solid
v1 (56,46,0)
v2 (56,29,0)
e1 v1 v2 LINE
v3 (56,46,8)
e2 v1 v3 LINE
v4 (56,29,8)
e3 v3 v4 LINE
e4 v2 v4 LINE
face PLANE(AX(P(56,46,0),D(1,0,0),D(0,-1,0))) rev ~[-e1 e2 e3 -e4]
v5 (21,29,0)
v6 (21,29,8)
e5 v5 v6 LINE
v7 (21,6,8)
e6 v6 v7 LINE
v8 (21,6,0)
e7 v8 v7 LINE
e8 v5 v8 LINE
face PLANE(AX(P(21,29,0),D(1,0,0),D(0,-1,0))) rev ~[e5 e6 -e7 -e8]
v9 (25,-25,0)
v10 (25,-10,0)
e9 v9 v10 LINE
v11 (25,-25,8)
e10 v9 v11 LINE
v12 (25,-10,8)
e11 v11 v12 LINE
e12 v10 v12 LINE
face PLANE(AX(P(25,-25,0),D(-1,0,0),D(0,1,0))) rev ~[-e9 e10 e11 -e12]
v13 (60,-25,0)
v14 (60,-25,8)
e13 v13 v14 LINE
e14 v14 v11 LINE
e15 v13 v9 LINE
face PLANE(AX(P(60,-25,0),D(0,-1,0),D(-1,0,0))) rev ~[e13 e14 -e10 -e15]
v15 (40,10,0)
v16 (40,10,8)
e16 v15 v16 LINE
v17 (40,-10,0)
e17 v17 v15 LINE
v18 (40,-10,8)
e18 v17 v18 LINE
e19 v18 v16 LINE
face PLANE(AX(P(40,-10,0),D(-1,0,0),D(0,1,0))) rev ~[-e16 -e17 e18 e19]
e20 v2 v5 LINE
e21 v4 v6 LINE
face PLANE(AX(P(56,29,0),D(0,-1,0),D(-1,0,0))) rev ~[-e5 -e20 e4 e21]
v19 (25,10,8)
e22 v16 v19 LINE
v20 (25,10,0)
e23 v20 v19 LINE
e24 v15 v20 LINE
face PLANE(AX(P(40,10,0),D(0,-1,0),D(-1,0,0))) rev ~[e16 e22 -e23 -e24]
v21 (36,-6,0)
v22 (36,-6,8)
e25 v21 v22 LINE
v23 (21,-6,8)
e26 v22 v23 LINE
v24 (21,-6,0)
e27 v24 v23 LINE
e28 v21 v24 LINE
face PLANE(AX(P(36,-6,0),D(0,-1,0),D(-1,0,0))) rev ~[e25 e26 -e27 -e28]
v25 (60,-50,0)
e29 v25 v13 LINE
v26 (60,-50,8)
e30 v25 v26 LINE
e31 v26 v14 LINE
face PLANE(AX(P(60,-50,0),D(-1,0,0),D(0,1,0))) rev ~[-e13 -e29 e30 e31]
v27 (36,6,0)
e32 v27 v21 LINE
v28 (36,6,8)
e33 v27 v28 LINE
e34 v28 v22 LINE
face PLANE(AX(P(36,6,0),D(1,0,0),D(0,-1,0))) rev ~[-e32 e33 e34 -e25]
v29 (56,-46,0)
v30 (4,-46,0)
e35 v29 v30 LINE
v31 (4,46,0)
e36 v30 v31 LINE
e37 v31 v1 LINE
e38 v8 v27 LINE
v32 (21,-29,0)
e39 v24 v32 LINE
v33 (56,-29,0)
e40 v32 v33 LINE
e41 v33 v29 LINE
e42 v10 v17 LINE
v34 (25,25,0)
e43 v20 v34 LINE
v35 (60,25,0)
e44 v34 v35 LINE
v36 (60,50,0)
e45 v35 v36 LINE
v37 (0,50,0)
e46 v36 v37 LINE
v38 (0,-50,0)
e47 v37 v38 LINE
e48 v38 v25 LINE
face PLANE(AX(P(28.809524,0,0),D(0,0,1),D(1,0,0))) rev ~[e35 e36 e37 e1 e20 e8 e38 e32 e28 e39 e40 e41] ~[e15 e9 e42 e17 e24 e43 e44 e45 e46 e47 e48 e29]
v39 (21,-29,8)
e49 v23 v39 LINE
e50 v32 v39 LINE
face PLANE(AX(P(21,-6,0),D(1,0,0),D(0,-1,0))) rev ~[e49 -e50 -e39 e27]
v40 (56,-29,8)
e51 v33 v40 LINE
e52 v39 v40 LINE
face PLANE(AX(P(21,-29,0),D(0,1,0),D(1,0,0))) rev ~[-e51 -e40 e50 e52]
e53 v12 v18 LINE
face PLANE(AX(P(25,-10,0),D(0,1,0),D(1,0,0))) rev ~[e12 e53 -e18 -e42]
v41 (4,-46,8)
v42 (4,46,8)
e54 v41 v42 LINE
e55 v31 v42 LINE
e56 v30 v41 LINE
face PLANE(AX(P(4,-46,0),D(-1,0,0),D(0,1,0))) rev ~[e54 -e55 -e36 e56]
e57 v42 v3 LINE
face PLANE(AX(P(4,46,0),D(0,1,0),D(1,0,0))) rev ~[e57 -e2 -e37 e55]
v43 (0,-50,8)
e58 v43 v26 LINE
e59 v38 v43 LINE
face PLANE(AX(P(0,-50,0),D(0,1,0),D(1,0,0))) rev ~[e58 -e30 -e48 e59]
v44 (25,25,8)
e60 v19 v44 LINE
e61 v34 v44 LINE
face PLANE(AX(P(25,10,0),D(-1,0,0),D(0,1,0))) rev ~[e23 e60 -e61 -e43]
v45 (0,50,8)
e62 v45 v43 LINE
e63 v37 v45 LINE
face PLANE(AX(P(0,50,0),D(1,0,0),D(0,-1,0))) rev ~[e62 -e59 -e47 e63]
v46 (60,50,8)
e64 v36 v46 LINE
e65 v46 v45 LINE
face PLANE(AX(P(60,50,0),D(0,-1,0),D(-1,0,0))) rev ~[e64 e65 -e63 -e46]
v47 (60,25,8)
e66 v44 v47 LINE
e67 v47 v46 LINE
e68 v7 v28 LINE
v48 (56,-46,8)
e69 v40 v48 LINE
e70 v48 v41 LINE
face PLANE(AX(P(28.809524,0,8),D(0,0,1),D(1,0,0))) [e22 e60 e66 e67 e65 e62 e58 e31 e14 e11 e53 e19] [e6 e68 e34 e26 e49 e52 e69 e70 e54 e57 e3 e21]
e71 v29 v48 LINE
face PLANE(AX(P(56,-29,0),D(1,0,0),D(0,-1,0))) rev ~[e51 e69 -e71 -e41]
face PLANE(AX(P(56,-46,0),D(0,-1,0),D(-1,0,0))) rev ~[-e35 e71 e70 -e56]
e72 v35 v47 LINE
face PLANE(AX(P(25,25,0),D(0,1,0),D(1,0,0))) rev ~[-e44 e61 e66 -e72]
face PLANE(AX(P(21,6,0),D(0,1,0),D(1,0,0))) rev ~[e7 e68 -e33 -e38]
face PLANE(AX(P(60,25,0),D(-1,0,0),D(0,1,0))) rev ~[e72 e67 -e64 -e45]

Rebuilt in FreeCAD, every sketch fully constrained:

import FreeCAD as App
import Part
import Sketcher

V = App.Vector
Q = App.Units.Quantity

doc = App.newDocument("Part")
body = doc.addObject("PartDesign::Body", "Body")

sketch1 = body.newObject("Sketcher::SketchObject", "Sketch")
sketch1.AttachmentSupport = (doc.getObject("XY_Plane"), [""])
sketch1.MapMode = "FlatFace"
sketch1.addGeometry([
    Part.LineSegment(V(0, 50, 0), V(0, -50, 0)),
    Part.LineSegment(V(0, -50, 0), V(60, -50, 0)),
    Part.LineSegment(V(60, -50, 0), V(60, -25, 0)),
    Part.LineSegment(V(60, -25, 0), V(25, -25, 0)),
    Part.LineSegment(V(25, -25, 0), V(25, -10, 0)),
    Part.LineSegment(V(25, -10, 0), V(40, -10, 0)),
    Part.LineSegment(V(40, -10, 0), V(40, 10, 0)),
    Part.LineSegment(V(40, 10, 0), V(25, 10, 0)),
    Part.LineSegment(V(25, 10, 0), V(25, 25, 0)),
    Part.LineSegment(V(25, 25, 0), V(60, 25, 0)),
    Part.LineSegment(V(60, 25, 0), V(60, 50, 0)),
    Part.LineSegment(V(60, 50, 0), V(0, 50, 0)),
    Part.LineSegment(V(56, -46, 0), V(4, -46, 0)),
    Part.LineSegment(V(4, -46, 0), V(4, 46, 0)),
    Part.LineSegment(V(4, 46, 0), V(56, 46, 0)),
    Part.LineSegment(V(56, 46, 0), V(56, 29, 0)),
    Part.LineSegment(V(56, 29, 0), V(21, 29, 0)),
    Part.LineSegment(V(21, 29, 0), V(21, 6, 0)),
    Part.LineSegment(V(21, 6, 0), V(36, 6, 0)),
    Part.LineSegment(V(36, 6, 0), V(36, -6, 0)),
    Part.LineSegment(V(36, -6, 0), V(21, -6, 0)),
    Part.LineSegment(V(21, -6, 0), V(21, -29, 0)),
    Part.LineSegment(V(21, -29, 0), V(56, -29, 0)),
    Part.LineSegment(V(56, -29, 0), V(56, -46, 0)),
], False)
sketch1.addConstraint([
    Sketcher.Constraint("Coincident", 0, 2, 1, 1),
    Sketcher.Constraint("Coincident", 1, 2, 2, 1),
    Sketcher.Constraint("Coincident", 2, 2, 3, 1),
    Sketcher.Constraint("Coincident", 3, 2, 4, 1),
    Sketcher.Constraint("Coincident", 4, 2, 5, 1),
    Sketcher.Constraint("Coincident", 5, 2, 6, 1),
    Sketcher.Constraint("Coincident", 6, 2, 7, 1),
    Sketcher.Constraint("Coincident", 7, 2, 8, 1),
    Sketcher.Constraint("Coincident", 8, 2, 9, 1),
    Sketcher.Constraint("Coincident", 9, 2, 10, 1),
    Sketcher.Constraint("Coincident", 10, 2, 11, 1),
    Sketcher.Constraint("Coincident", 11, 2, 0, 1),
    Sketcher.Constraint("Coincident", 12, 2, 13, 1),
    Sketcher.Constraint("Coincident", 13, 2, 14, 1),
    Sketcher.Constraint("Coincident", 14, 2, 15, 1),
    Sketcher.Constraint("Coincident", 15, 2, 16, 1),
    Sketcher.Constraint("Coincident", 16, 2, 17, 1),
    Sketcher.Constraint("Coincident", 17, 2, 18, 1),
    Sketcher.Constraint("Coincident", 18, 2, 19, 1),
    Sketcher.Constraint("Coincident", 19, 2, 20, 1),
    Sketcher.Constraint("Coincident", 20, 2, 21, 1),
    Sketcher.Constraint("Coincident", 21, 2, 22, 1),
    Sketcher.Constraint("Coincident", 22, 2, 23, 1),
    Sketcher.Constraint("Coincident", 23, 2, 12, 1),
    Sketcher.Constraint("Vertical", 0),
    Sketcher.Constraint("Horizontal", 1),
    Sketcher.Constraint("Vertical", 2),
    Sketcher.Constraint("Horizontal", 3),
    Sketcher.Constraint("Vertical", 4),
    Sketcher.Constraint("Horizontal", 5),
    Sketcher.Constraint("Vertical", 6),
    Sketcher.Constraint("Horizontal", 7),
    Sketcher.Constraint("Vertical", 8),
    Sketcher.Constraint("Horizontal", 9),
    Sketcher.Constraint("Vertical", 10),
    Sketcher.Constraint("Horizontal", 11),
    Sketcher.Constraint("Horizontal", 12),
    Sketcher.Constraint("Vertical", 13),
    Sketcher.Constraint("Horizontal", 14),
    Sketcher.Constraint("Vertical", 15),
    Sketcher.Constraint("Horizontal", 16),
    Sketcher.Constraint("Vertical", 17),
    Sketcher.Constraint("Horizontal", 18),
    Sketcher.Constraint("Vertical", 19),
    Sketcher.Constraint("Horizontal", 20),
    Sketcher.Constraint("Vertical", 21),
    Sketcher.Constraint("Horizontal", 22),
    Sketcher.Constraint("Vertical", 23),
    Sketcher.Constraint("Symmetric", 0, 2, 11, 2, -1, 1),
    Sketcher.Constraint("Symmetric", 4, 2, 7, 2, -1),
    Sketcher.Constraint("Symmetric", 2, 2, 9, 2, -1),
    Sketcher.Constraint("Symmetric", 17, 2, 20, 2, -1),
    Sketcher.Constraint("Symmetric", 15, 2, 22, 2, -1),
    Sketcher.Constraint("Equal", 9, 16),
    Sketcher.Constraint("Equal", 7, 18),
    Sketcher.Constraint("Equal", 20, 4),
    Sketcher.Constraint("Equal", 15, 23),
    Sketcher.Constraint("DistanceX", 1, 1, 1, 2, Q("60 mm")),
    Sketcher.Constraint("DistanceX", 3, 2, 3, 1, Q("35 mm")),
    Sketcher.Constraint("DistanceX", 5, 1, 5, 2, Q("15 mm")),
    Sketcher.Constraint("DistanceX", 12, 2, 12, 1, Q("52 mm")),
    Sketcher.Constraint("DistanceY", 0, 2, 0, 1, Q("100 mm")),
    Sketcher.Constraint("DistanceY", 2, 1, 2, 2, Q("25 mm")),
    Sketcher.Constraint("DistanceY", 13, 1, 13, 2, Q("92 mm")),
    Sketcher.Constraint("DistanceY", 15, 2, 15, 1, Q("17 mm")),
    Sketcher.Constraint("DistanceY", 17, 2, 17, 1, Q("23 mm")),
    Sketcher.Constraint("DistanceX", -1, 1, 12, 2, Q("4 mm")),
])
pad1 = body.newObject("PartDesign::Pad", "Pad")
pad1.Profile = sketch1
pad1.Length = 8

doc.recompute()
